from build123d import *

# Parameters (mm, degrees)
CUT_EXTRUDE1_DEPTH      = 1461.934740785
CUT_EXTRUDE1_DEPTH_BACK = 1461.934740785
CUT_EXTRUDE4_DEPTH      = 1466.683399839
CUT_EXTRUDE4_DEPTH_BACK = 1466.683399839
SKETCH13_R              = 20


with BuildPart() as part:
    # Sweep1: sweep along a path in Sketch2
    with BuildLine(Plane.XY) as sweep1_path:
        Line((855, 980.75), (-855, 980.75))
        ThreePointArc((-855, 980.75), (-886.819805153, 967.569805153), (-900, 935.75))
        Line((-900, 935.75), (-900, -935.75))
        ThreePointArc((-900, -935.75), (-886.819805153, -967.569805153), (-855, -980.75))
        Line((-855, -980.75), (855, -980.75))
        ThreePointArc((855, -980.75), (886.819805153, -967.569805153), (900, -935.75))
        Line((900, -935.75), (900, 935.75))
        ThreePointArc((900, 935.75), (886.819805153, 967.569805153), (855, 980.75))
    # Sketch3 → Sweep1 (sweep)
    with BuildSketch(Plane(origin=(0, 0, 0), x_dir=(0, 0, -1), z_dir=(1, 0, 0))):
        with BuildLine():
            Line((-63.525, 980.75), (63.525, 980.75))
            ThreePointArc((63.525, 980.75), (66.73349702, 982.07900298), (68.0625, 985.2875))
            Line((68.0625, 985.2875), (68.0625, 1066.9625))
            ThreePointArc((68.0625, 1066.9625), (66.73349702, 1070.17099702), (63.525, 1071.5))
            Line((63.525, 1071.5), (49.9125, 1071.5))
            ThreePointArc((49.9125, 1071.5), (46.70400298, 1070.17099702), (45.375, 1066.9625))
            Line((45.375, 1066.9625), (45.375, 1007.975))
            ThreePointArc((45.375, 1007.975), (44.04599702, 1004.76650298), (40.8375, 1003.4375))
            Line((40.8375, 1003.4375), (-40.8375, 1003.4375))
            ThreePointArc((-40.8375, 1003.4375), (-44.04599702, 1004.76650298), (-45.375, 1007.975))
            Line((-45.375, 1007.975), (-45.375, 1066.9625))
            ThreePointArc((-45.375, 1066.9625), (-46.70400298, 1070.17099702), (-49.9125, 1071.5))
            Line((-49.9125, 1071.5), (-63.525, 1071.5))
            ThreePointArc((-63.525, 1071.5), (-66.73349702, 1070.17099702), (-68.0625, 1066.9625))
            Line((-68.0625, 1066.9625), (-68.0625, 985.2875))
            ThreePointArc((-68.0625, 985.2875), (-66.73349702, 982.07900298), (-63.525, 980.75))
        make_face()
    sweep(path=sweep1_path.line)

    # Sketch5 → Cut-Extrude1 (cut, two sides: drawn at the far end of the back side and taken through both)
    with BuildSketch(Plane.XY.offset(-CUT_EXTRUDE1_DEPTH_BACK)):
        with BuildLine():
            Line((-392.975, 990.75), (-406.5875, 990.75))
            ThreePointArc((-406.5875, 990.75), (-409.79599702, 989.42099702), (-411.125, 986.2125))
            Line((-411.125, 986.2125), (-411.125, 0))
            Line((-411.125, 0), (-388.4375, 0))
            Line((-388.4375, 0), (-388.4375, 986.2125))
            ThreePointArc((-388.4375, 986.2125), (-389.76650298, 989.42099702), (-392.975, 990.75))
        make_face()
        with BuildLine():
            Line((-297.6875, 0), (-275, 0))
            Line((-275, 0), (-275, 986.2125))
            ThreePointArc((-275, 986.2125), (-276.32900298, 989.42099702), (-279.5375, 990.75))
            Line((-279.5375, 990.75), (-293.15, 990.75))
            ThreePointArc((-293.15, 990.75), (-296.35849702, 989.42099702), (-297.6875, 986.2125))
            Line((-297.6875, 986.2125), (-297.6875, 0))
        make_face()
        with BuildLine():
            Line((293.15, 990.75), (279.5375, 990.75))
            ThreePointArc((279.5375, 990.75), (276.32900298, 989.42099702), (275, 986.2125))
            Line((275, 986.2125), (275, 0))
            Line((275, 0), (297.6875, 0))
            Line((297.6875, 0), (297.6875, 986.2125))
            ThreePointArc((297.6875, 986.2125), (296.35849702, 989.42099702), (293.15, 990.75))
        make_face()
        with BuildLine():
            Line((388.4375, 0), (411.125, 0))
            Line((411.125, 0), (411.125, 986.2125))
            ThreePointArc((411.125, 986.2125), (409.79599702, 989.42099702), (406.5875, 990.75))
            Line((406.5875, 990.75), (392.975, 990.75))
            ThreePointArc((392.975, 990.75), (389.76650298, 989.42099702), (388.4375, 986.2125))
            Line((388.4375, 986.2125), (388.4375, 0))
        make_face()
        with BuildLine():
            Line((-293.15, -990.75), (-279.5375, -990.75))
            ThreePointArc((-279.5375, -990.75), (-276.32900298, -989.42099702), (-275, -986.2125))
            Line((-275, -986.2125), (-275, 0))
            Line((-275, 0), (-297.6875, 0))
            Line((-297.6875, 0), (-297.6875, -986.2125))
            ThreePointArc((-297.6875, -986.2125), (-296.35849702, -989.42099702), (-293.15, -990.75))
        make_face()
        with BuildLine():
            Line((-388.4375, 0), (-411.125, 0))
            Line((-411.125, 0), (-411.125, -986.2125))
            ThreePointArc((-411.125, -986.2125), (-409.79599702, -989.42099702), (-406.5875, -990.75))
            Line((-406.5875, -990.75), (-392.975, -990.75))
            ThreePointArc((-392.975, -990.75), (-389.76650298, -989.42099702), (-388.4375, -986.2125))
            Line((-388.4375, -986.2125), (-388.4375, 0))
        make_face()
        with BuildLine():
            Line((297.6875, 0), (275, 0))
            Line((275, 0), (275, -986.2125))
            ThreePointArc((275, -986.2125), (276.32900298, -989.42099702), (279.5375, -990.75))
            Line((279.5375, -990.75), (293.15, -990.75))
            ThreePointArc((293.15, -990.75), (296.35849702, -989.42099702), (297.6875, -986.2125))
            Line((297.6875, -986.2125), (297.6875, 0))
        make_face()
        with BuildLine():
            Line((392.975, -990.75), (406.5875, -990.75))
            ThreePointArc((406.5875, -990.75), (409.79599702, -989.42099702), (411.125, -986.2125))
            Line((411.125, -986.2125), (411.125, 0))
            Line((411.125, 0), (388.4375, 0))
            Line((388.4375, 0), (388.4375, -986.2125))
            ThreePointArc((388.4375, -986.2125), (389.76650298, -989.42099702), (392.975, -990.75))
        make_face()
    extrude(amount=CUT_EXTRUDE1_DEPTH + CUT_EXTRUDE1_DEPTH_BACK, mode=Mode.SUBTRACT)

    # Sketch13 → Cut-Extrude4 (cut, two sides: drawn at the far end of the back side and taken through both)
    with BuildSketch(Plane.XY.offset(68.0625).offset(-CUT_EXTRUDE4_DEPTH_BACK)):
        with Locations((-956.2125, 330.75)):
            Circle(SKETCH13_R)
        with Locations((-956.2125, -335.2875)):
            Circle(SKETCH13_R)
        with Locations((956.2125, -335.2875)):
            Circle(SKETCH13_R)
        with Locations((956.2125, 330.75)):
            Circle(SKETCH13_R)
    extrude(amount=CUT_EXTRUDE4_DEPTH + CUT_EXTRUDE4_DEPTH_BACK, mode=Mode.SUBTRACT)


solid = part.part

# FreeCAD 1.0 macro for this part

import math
import FreeCAD as App
import Part
import Sketcher
from FreeCAD import Vector
Q = App.Units.Quantity

doc = App.newDocument("Part")
body = doc.addObject("PartDesign::Body", "Body")

# Sketch on YZ plane
sketch1 = body.newObject("Sketcher::SketchObject", "Sketch")
sketch1.AttachmentSupport = (doc.getObject("YZ_Plane"), [""])
sketch1.MapMode = "FlatFace"
sketch1.addGeometry([
    Part.LineSegment(Vector(980.75, 63.525, 0), Vector(980.75, -63.525, 0)),  # 0
    Part.ArcOfCircle(Part.Circle(Vector(985.2875, -63.525, 0), Vector(0, 0, 1), 4.5375), math.radians(180), math.radians(270)),  # 1
    Part.LineSegment(Vector(985.2875, -68.0625, 0), Vector(1066.9625, -68.0625, 0)),  # 2
    Part.ArcOfCircle(Part.Circle(Vector(1066.9625, -63.525, 0), Vector(0, 0, 1), 4.5375), math.radians(-90), math.radians(0)),  # 3
    Part.LineSegment(Vector(1071.5, -63.525, 0), Vector(1071.5, -49.9125, 0)),  # 4
    Part.ArcOfCircle(Part.Circle(Vector(1066.9625, -49.9125, 0), Vector(0, 0, 1), 4.5375), math.radians(0), math.radians(90)),  # 5
    Part.LineSegment(Vector(1066.9625, -45.375, 0), Vector(1007.975, -45.375, 0)),  # 6
    Part.ArcOfCircle(Part.Circle(Vector(1007.975, -40.8375, 0), Vector(0, 0, 1), 4.5375), math.radians(180), math.radians(270)),  # 7
    Part.LineSegment(Vector(1003.4375, -40.8375, 0), Vector(1003.4375, 40.8375, 0)),  # 8
    Part.ArcOfCircle(Part.Circle(Vector(1007.975, 40.8375, 0), Vector(0, 0, 1), 4.5375), math.radians(90), math.radians(180)),  # 9
    Part.LineSegment(Vector(1007.975, 45.375, 0), Vector(1066.9625, 45.375, 0)),  # 10
    Part.ArcOfCircle(Part.Circle(Vector(1066.9625, 49.9125, 0), Vector(0, 0, 1), 4.5375), math.radians(-90), math.radians(0)),  # 11
    Part.LineSegment(Vector(1071.5, 49.9125, 0), Vector(1071.5, 63.525, 0)),  # 12
    Part.ArcOfCircle(Part.Circle(Vector(1066.9625, 63.525, 0), Vector(0, 0, 1), 4.5375), math.radians(0), math.radians(90)),  # 13
    Part.LineSegment(Vector(1066.9625, 68.0625, 0), Vector(985.2875, 68.0625, 0)),  # 14
    Part.ArcOfCircle(Part.Circle(Vector(985.2875, 63.525, 0), Vector(0, 0, 1), 4.5375), math.radians(90), math.radians(180)),  # 15
], False)
sketch1.addConstraint([
    Sketcher.Constraint("Tangent", 0, 2, 1, 1),
    Sketcher.Constraint("Tangent", 1, 2, 2, 1),
    Sketcher.Constraint("Tangent", 2, 2, 3, 1),
    Sketcher.Constraint("Tangent", 3, 2, 4, 1),
    Sketcher.Constraint("Tangent", 4, 2, 5, 1),
    Sketcher.Constraint("Tangent", 5, 2, 6, 1),
    Sketcher.Constraint("Tangent", 6, 2, 7, 2),
    Sketcher.Constraint("Tangent", 7, 1, 8, 1),
    Sketcher.Constraint("Tangent", 8, 2, 9, 2),
    Sketcher.Constraint("Tangent", 9, 1, 10, 1),
    Sketcher.Constraint("Tangent", 10, 2, 11, 1),
    Sketcher.Constraint("Tangent", 11, 2, 12, 1),
    Sketcher.Constraint("Tangent", 12, 2, 13, 1),
    Sketcher.Constraint("Tangent", 13, 2, 14, 1),
    Sketcher.Constraint("Tangent", 14, 2, 15, 1),
    Sketcher.Constraint("Tangent", 15, 2, 0, 1),
    Sketcher.Constraint("Vertical", 0),
    Sketcher.Constraint("Horizontal", 2),
    Sketcher.Constraint("Vertical", 4),
    Sketcher.Constraint("Horizontal", 6),
    Sketcher.Constraint("Vertical", 8),
    Sketcher.Constraint("Horizontal", 10),
    Sketcher.Constraint("Vertical", 12),
    Sketcher.Constraint("Horizontal", 14),
    Sketcher.Constraint("Equal", 1, 3),
    Sketcher.Constraint("Equal", 3, 5),
    Sketcher.Constraint("Equal", 5, 7),
    Sketcher.Constraint("Equal", 7, 9),
    Sketcher.Constraint("Equal", 9, 11),
    Sketcher.Constraint("Equal", 11, 13),
    Sketcher.Constraint("Equal", 13, 15),
    Sketcher.Constraint("Symmetric", 5, 3, 11, 3, -1),
    Sketcher.Constraint("Equal", 14, 8),
    Sketcher.Constraint("Equal", 4, 12),
    Sketcher.Constraint("DistanceY", 0, 2, 0, 1, Q("127.05 mm")),
    Sketcher.Constraint("DistanceX", -1, 1, 3, 2, Q("1071.5 mm")),
    Sketcher.Constraint("Radius", 1, Q("4.5375 mm")),
    Sketcher.Constraint("DistanceX", 2, 1, 2, 2, Q("81.675 mm")),
    Sketcher.Constraint("DistanceX", 1, 3, 7, 1, Q("18.15 mm")),
])

# Sketch on XY plane
sketch2 = body.newObject("Sketcher::SketchObject", "Sketch001")
sketch2.AttachmentSupport = (doc.getObject("XY_Plane"), [""])
sketch2.MapMode = "FlatFace"
sketch2.addGeometry([
    Part.LineSegment(Vector(855, 980.75, 0), Vector(-855, 980.75, 0)),  # 0
    Part.ArcOfCircle(Part.Circle(Vector(-855, 935.75, 0), Vector(0, 0, 1), 45), math.radians(90), math.radians(180)),  # 1
    Part.LineSegment(Vector(-900, 935.75, 0), Vector(-900, -935.75, 0)),  # 2
    Part.ArcOfCircle(Part.Circle(Vector(-855, -935.75, 0), Vector(0, 0, 1), 45), math.radians(-180), math.radians(-90)),  # 3
    Part.LineSegment(Vector(-855, -980.75, 0), Vector(855, -980.75, 0)),  # 4
    Part.ArcOfCircle(Part.Circle(Vector(855, -935.75, 0), Vector(0, 0, 1), 45), math.radians(-90), math.radians(0)),  # 5
    Part.LineSegment(Vector(900, -935.75, 0), Vector(900, 935.75, 0)),  # 6
    Part.ArcOfCircle(Part.Circle(Vector(855, 935.75, 0), Vector(0, 0, 1), 45), math.radians(0), math.radians(90)),  # 7
], False)
sketch2.addConstraint([
    Sketcher.Constraint("Tangent", 0, 2, 1, 1),
    Sketcher.Constraint("Tangent", 1, 2, 2, 1),
    Sketcher.Constraint("Tangent", 2, 2, 3, 1),
    Sketcher.Constraint("Tangent", 3, 2, 4, 1),
    Sketcher.Constraint("Tangent", 4, 2, 5, 1),
    Sketcher.Constraint("Tangent", 5, 2, 6, 1),
    Sketcher.Constraint("Tangent", 6, 2, 7, 1),
    Sketcher.Constraint("Tangent", 7, 2, 0, 1),
    Sketcher.Constraint("Horizontal", 0),
    Sketcher.Constraint("Vertical", 2),
    Sketcher.Constraint("Horizontal", 4),
    Sketcher.Constraint("Vertical", 6),
    Sketcher.Constraint("Equal", 1, 3),
    Sketcher.Constraint("Equal", 3, 5),
    Sketcher.Constraint("Equal", 5, 7),
    Sketcher.Constraint("Symmetric", 1, 3, 5, 3, -1, 1),
    Sketcher.Constraint("Radius", 1, Q("45 mm")),
    Sketcher.Constraint("DistanceX", 0, 2, 0, 1, Q("1710 mm")),
    Sketcher.Constraint("DistanceY", 2, 2, 2, 1, Q("1871.5 mm")),
])
doc.recompute()

additivepipe = body.newObject("PartDesign::AdditivePipe", "AdditivePipe")
additivepipe.Profile = sketch1
additivepipe.Spine = (sketch2, ["Edge1", "Edge2", "Edge3", "Edge4", "Edge5", "Edge6", "Edge7", "Edge8"])

# Sketch on XY plane
sketch3 = body.newObject("Sketcher::SketchObject", "Sketch002")
sketch3.AttachmentSupport = (doc.getObject("XY_Plane"), [""])
sketch3.MapMode = "FlatFace"
sketch3.addGeometry([
    Part.LineSegment(Vector(-392.975, 990.75, 0), Vector(-406.5875, 990.75, 0)),  # 0
    Part.ArcOfCircle(Part.Circle(Vector(-406.5875, 986.2125, 0), Vector(0, 0, 1), 4.5375), math.radians(90), math.radians(180)),  # 1
    Part.LineSegment(Vector(-411.125, 986.2125, 0), Vector(-411.125, -986.2125, 0)),  # 2
    Part.ArcOfCircle(Part.Circle(Vector(-406.5875, -986.2125, 0), Vector(0, 0, 1), 4.5375), math.radians(180), math.radians(270)),  # 3
    Part.LineSegment(Vector(-406.5875, -990.75, 0), Vector(-392.975, -990.75, 0)),  # 4
    Part.ArcOfCircle(Part.Circle(Vector(-392.975, -986.2125, 0), Vector(0, 0, 1), 4.5375), math.radians(-90), math.radians(0)),  # 5
    Part.LineSegment(Vector(-388.4375, -986.2125, 0), Vector(-388.4375, 986.2125, 0)),  # 6
    Part.ArcOfCircle(Part.Circle(Vector(-392.975, 986.2125, 0), Vector(0, 0, 1), 4.5375), math.radians(0), math.radians(90)),  # 7
    Part.ArcOfCircle(Part.Circle(Vector(-279.5375, 986.2125, 0), Vector(0, 0, 1), 4.5375), math.radians(0), math.radians(90)),  # 8
    Part.LineSegment(Vector(-279.5375, 990.75, 0), Vector(-293.15, 990.75, 0)),  # 9
    Part.ArcOfCircle(Part.Circle(Vector(-293.15, 986.2125, 0), Vector(0, 0, 1), 4.5375), math.radians(90), math.radians(180)),  # 10
    Part.LineSegment(Vector(-297.6875, 986.2125, 0), Vector(-297.6875, -986.2125, 0)),  # 11
    Part.ArcOfCircle(Part.Circle(Vector(-293.15, -986.2125, 0), Vector(0, 0, 1), 4.5375), math.radians(180), math.radians(270)),  # 12
    Part.LineSegment(Vector(-293.15, -990.75, 0), Vector(-279.5375, -990.75, 0)),  # 13
    Part.ArcOfCircle(Part.Circle(Vector(-279.5375, -986.2125, 0), Vector(0, 0, 1), 4.5375), math.radians(-90), math.radians(0)),  # 14
    Part.LineSegment(Vector(-275, -986.2125, 0), Vector(-275, 986.2125, 0)),  # 15
    Part.LineSegment(Vector(293.15, 990.75, 0), Vector(279.5375, 990.75, 0)),  # 16
    Part.ArcOfCircle(Part.Circle(Vector(279.5375, 986.2125, 0), Vector(0, 0, 1), 4.5375), math.radians(90), math.radians(180)),  # 17
    Part.LineSegment(Vector(275, 986.2125, 0), Vector(275, -986.2125, 0)),  # 18
    Part.ArcOfCircle(Part.Circle(Vector(279.5375, -986.2125, 0), Vector(0, 0, 1), 4.5375), math.radians(180), math.radians(270)),  # 19
    Part.LineSegment(Vector(279.5375, -990.75, 0), Vector(293.15, -990.75, 0)),  # 20
    Part.ArcOfCircle(Part.Circle(Vector(293.15, -986.2125, 0), Vector(0, 0, 1), 4.5375), math.radians(-90), math.radians(0)),  # 21
    Part.LineSegment(Vector(297.6875, -986.2125, 0), Vector(297.6875, 986.2125, 0)),  # 22
    Part.ArcOfCircle(Part.Circle(Vector(293.15, 986.2125, 0), Vector(0, 0, 1), 4.5375), math.radians(0), math.radians(90)),  # 23
    Part.ArcOfCircle(Part.Circle(Vector(406.5875, 986.2125, 0), Vector(0, 0, 1), 4.5375), math.radians(0), math.radians(90)),  # 24
    Part.LineSegment(Vector(406.5875, 990.75, 0), Vector(392.975, 990.75, 0)),  # 25
    Part.ArcOfCircle(Part.Circle(Vector(392.975, 986.2125, 0), Vector(0, 0, 1), 4.5375), math.radians(90), math.radians(180)),  # 26
    Part.LineSegment(Vector(388.4375, 986.2125, 0), Vector(388.4375, -986.2125, 0)),  # 27
    Part.ArcOfCircle(Part.Circle(Vector(392.975, -986.2125, 0), Vector(0, 0, 1), 4.5375), math.radians(180), math.radians(270)),  # 28
    Part.LineSegment(Vector(392.975, -990.75, 0), Vector(406.5875, -990.75, 0)),  # 29
    Part.ArcOfCircle(Part.Circle(Vector(406.5875, -986.2125, 0), Vector(0, 0, 1), 4.5375), math.radians(-90), math.radians(0)),  # 30
    Part.LineSegment(Vector(411.125, -986.2125, 0), Vector(411.125, 986.2125, 0)),  # 31
], False)
sketch3.addConstraint([
    Sketcher.Constraint("Tangent", 0, 2, 1, 1),
    Sketcher.Constraint("Tangent", 1, 2, 2, 1),
    Sketcher.Constraint("Tangent", 2, 2, 3, 1),
    Sketcher.Constraint("Tangent", 3, 2, 4, 1),
    Sketcher.Constraint("Tangent", 4, 2, 5, 1),
    Sketcher.Constraint("Tangent", 5, 2, 6, 1),
    Sketcher.Constraint("Tangent", 6, 2, 7, 1),
    Sketcher.Constraint("Tangent", 7, 2, 0, 1),
    Sketcher.Constraint("Tangent", 8, 2, 9, 1),
    Sketcher.Constraint("Tangent", 9, 2, 10, 1),
    Sketcher.Constraint("Tangent", 10, 2, 11, 1),
    Sketcher.Constraint("Tangent", 11, 2, 12, 1),
    Sketcher.Constraint("Tangent", 12, 2, 13, 1),
    Sketcher.Constraint("Tangent", 13, 2, 14, 1),
    Sketcher.Constraint("Tangent", 14, 2, 15, 1),
    Sketcher.Constraint("Tangent", 15, 2, 8, 1),
    Sketcher.Constraint("Tangent", 16, 2, 17, 1),
    Sketcher.Constraint("Tangent", 17, 2, 18, 1),
    Sketcher.Constraint("Tangent", 18, 2, 19, 1),
    Sketcher.Constraint("Tangent", 19, 2, 20, 1),
    Sketcher.Constraint("Tangent", 20, 2, 21, 1),
    Sketcher.Constraint("Tangent", 21, 2, 22, 1),
    Sketcher.Constraint("Tangent", 22, 2, 23, 1),
    Sketcher.Constraint("Tangent", 23, 2, 16, 1),
    Sketcher.Constraint("Tangent", 24, 2, 25, 1),
    Sketcher.Constraint("Tangent", 25, 2, 26, 1),
    Sketcher.Constraint("Tangent", 26, 2, 27, 1),
    Sketcher.Constraint("Tangent", 27, 2, 28, 1),
    Sketcher.Constraint("Tangent", 28, 2, 29, 1),
    Sketcher.Constraint("Tangent", 29, 2, 30, 1),
    Sketcher.Constraint("Tangent", 30, 2, 31, 1),
    Sketcher.Constraint("Tangent", 31, 2, 24, 1),
    Sketcher.Constraint("Horizontal", 0),
    Sketcher.Constraint("Vertical", 2),
    Sketcher.Constraint("Horizontal", 4),
    Sketcher.Constraint("Vertical", 6),
    Sketcher.Constraint("Horizontal", 9),
    Sketcher.Constraint("Vertical", 11),
    Sketcher.Constraint("Horizontal", 13),
    Sketcher.Constraint("Vertical", 15),
    Sketcher.Constraint("Horizontal", 16),
    Sketcher.Constraint("Vertical", 18),
    Sketcher.Constraint("Horizontal", 20),
    Sketcher.Constraint("Vertical", 22),
    Sketcher.Constraint("Horizontal", 25),
    Sketcher.Constraint("Vertical", 27),
    Sketcher.Constraint("Horizontal", 29),
    Sketcher.Constraint("Vertical", 31),
    Sketcher.Constraint("Equal", 1, 3),
    Sketcher.Constraint("Equal", 3, 5),
    Sketcher.Constraint("Equal", 5, 7),
    Sketcher.Constraint("Equal", 7, 8),
    Sketcher.Constraint("Equal", 8, 10),
    Sketcher.Constraint("Equal", 10, 12),
    Sketcher.Constraint("Equal", 12, 14),
    Sketcher.Constraint("Equal", 14, 17),
    Sketcher.Constraint("Equal", 17, 19),
    Sketcher.Constraint("Equal", 19, 21),
    Sketcher.Constraint("Equal", 21, 23),
    Sketcher.Constraint("Equal", 23, 24),
    Sketcher.Constraint("Equal", 24, 26),
    Sketcher.Constraint("Equal", 26, 28),
    Sketcher.Constraint("Equal", 28, 30),
    Sketcher.Constraint("Symmetric", 14, 3, 17, 3, -1, 1),
    Sketcher.Constraint("Symmetric", 10, 3, 21, 3, -1, 1),
    Sketcher.Constraint("Symmetric", 3, 3, 24, 3, -1, 1),
    Sketcher.Constraint("Symmetric", 7, 3, 28, 3, -1, 1),
    Sketcher.Constraint("Horizontal", 7, 3, 8, 3),
    Sketcher.Constraint("Horizontal", 5, 3, 12, 3),
    Sketcher.Constraint("Horizontal", 10, 3, 17, 3),
    Sketcher.Constraint("Equal", 4, 9),
    Sketcher.Constraint("DistanceX", 14, 2, -1, 1, Q("275 mm")),
    Sketcher.Constraint("Radius", 1, Q("4.5375 mm")),
    Sketcher.Constraint("DistanceX", 12, 3, 21, 3, Q("586.3 mm")),
    Sketcher.Constraint("DistanceX", 6, 2, 8, 2, Q("108.9 mm")),
    Sketcher.Constraint("DistanceY", 2, 2, 2, 1, Q("1972.425 mm")),
])
pocket1 = body.newObject("PartDesign::Pocket", "Pocket")
pocket1.Profile = sketch3
pocket1.Type = "ThroughAll"
pocket1.Midplane = True

# Sketch on XY plane
sketch4 = body.newObject("Sketcher::SketchObject", "Sketch003")
sketch4.AttachmentSupport = (doc.getObject("XY_Plane"), [""])
sketch4.MapMode = "FlatFace"
sketch4.AttachmentOffset = App.Placement(Vector(0, 0, 68.0625), App.Rotation())
sketch4.addGeometry([
    Part.Circle(Vector(-956.2125, 330.75, 0), Vector(0, 0, 1), 20),
    Part.Circle(Vector(-956.2125, -335.2875, 0), Vector(0, 0, 1), 20),
    Part.Circle(Vector(956.2125, -335.2875, 0), Vector(0, 0, 1), 20),
    Part.Circle(Vector(956.2125, 330.75, 0), Vector(0, 0, 1), 20),
], False)
sketch4.addConstraint([
    Sketcher.Constraint("Equal", 0, 1),
    Sketcher.Constraint("Equal", 1, 2),
    Sketcher.Constraint("Equal", 2, 3),
    Sketcher.Constraint("Symmetric", 1, 3, 2, 3, -2),
    Sketcher.Constraint("Symmetric", 0, 3, 3, 3, -2),
    Sketcher.Constraint("Vertical", 0, 3, 1, 3),
    Sketcher.Constraint("Diameter", 0, Q("40 mm")),
    Sketcher.Constraint("DistanceY", -1, 1, 0, 3, Q("330.75 mm")),
    Sketcher.Constraint("DistanceX", 1, 3, 2, 3, Q("1912.425 mm")),
    Sketcher.Constraint("DistanceY", 1, 3, -1, 1, Q("335.2875 mm")),
])
pocket2 = body.newObject("PartDesign::Pocket", "Pocket001")
pocket2.Profile = sketch4
pocket2.Type = "ThroughAll"
pocket2.Midplane = True

doc.recompute()
